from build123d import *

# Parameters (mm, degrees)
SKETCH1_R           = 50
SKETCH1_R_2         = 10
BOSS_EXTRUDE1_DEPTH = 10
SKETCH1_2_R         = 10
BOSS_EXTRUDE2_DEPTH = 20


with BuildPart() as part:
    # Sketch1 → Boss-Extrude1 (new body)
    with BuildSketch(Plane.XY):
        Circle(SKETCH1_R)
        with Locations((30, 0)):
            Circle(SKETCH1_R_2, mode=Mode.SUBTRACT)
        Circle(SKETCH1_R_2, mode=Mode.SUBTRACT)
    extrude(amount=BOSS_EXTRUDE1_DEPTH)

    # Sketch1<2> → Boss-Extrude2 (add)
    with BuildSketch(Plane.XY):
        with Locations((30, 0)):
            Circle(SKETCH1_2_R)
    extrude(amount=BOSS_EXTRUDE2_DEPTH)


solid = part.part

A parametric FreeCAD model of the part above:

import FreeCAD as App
import Part
import Sketcher

doc = App.newDocument("Part")
body = doc.addObject("PartDesign::Body", "Body")

# Sketch on XY plane
sketch1 = doc.addObject("Sketcher::SketchObject", "Sketch")
body.addObject(sketch1)
sketch1.AttachmentSupport = (doc.XY_Plane, [""])
sketch1.MapMode = "FlatFace"
sketch1.addGeometry([
    Part.Circle(App.Vector(0, 0, 0), App.Vector(0, 0, 1), 50),
    Part.Circle(App.Vector(0, 0, 0), App.Vector(0, 0, 1), 10),
    Part.Circle(App.Vector(30, 0, 0), App.Vector(0, 0, 1), 10),
], False)
sketch1.addConstraint([
    Sketcher.Constraint("Coincident", 0, 3, -1, 1),
    Sketcher.Constraint("Coincident", 1, 3, -1, 1),
    Sketcher.Constraint("Equal", 1, 2),
    Sketcher.Constraint("PointOnObject", 2, 3, -1),
    Sketcher.Constraint("Diameter", 0, 100.0),
    Sketcher.Constraint("Diameter", 1, 20.0),
    Sketcher.Constraint("DistanceX", -1, 1, 2, 3, 30.0),
])
pad1 = doc.addObject("PartDesign::Pad", "Pad")
body.addObject(pad1)
pad1.Profile = sketch1
pad1.Length = 10

# Sketch on XY plane
sketch2 = doc.addObject("Sketcher::SketchObject", "Sketch001")
body.addObject(sketch2)
sketch2.AttachmentSupport = (doc.XY_Plane, [""])
sketch2.MapMode = "FlatFace"
sketch2.addGeometry(Part.Circle(App.Vector(30, 0, 0), App.Vector(0, 0, 1), 10), False)
sketch2.addConstraint([
    Sketcher.Constraint("PointOnObject", 0, 3, -1),
    Sketcher.Constraint("Diameter", 0, 20.0),
    Sketcher.Constraint("DistanceX", -1, 1, 0, 3, 30.0),
])
pad2 = doc.addObject("PartDesign::Pad", "Pad001")
body.addObject(pad2)
pad2.Profile = sketch2
pad2.Length = 20

doc.recompute()
